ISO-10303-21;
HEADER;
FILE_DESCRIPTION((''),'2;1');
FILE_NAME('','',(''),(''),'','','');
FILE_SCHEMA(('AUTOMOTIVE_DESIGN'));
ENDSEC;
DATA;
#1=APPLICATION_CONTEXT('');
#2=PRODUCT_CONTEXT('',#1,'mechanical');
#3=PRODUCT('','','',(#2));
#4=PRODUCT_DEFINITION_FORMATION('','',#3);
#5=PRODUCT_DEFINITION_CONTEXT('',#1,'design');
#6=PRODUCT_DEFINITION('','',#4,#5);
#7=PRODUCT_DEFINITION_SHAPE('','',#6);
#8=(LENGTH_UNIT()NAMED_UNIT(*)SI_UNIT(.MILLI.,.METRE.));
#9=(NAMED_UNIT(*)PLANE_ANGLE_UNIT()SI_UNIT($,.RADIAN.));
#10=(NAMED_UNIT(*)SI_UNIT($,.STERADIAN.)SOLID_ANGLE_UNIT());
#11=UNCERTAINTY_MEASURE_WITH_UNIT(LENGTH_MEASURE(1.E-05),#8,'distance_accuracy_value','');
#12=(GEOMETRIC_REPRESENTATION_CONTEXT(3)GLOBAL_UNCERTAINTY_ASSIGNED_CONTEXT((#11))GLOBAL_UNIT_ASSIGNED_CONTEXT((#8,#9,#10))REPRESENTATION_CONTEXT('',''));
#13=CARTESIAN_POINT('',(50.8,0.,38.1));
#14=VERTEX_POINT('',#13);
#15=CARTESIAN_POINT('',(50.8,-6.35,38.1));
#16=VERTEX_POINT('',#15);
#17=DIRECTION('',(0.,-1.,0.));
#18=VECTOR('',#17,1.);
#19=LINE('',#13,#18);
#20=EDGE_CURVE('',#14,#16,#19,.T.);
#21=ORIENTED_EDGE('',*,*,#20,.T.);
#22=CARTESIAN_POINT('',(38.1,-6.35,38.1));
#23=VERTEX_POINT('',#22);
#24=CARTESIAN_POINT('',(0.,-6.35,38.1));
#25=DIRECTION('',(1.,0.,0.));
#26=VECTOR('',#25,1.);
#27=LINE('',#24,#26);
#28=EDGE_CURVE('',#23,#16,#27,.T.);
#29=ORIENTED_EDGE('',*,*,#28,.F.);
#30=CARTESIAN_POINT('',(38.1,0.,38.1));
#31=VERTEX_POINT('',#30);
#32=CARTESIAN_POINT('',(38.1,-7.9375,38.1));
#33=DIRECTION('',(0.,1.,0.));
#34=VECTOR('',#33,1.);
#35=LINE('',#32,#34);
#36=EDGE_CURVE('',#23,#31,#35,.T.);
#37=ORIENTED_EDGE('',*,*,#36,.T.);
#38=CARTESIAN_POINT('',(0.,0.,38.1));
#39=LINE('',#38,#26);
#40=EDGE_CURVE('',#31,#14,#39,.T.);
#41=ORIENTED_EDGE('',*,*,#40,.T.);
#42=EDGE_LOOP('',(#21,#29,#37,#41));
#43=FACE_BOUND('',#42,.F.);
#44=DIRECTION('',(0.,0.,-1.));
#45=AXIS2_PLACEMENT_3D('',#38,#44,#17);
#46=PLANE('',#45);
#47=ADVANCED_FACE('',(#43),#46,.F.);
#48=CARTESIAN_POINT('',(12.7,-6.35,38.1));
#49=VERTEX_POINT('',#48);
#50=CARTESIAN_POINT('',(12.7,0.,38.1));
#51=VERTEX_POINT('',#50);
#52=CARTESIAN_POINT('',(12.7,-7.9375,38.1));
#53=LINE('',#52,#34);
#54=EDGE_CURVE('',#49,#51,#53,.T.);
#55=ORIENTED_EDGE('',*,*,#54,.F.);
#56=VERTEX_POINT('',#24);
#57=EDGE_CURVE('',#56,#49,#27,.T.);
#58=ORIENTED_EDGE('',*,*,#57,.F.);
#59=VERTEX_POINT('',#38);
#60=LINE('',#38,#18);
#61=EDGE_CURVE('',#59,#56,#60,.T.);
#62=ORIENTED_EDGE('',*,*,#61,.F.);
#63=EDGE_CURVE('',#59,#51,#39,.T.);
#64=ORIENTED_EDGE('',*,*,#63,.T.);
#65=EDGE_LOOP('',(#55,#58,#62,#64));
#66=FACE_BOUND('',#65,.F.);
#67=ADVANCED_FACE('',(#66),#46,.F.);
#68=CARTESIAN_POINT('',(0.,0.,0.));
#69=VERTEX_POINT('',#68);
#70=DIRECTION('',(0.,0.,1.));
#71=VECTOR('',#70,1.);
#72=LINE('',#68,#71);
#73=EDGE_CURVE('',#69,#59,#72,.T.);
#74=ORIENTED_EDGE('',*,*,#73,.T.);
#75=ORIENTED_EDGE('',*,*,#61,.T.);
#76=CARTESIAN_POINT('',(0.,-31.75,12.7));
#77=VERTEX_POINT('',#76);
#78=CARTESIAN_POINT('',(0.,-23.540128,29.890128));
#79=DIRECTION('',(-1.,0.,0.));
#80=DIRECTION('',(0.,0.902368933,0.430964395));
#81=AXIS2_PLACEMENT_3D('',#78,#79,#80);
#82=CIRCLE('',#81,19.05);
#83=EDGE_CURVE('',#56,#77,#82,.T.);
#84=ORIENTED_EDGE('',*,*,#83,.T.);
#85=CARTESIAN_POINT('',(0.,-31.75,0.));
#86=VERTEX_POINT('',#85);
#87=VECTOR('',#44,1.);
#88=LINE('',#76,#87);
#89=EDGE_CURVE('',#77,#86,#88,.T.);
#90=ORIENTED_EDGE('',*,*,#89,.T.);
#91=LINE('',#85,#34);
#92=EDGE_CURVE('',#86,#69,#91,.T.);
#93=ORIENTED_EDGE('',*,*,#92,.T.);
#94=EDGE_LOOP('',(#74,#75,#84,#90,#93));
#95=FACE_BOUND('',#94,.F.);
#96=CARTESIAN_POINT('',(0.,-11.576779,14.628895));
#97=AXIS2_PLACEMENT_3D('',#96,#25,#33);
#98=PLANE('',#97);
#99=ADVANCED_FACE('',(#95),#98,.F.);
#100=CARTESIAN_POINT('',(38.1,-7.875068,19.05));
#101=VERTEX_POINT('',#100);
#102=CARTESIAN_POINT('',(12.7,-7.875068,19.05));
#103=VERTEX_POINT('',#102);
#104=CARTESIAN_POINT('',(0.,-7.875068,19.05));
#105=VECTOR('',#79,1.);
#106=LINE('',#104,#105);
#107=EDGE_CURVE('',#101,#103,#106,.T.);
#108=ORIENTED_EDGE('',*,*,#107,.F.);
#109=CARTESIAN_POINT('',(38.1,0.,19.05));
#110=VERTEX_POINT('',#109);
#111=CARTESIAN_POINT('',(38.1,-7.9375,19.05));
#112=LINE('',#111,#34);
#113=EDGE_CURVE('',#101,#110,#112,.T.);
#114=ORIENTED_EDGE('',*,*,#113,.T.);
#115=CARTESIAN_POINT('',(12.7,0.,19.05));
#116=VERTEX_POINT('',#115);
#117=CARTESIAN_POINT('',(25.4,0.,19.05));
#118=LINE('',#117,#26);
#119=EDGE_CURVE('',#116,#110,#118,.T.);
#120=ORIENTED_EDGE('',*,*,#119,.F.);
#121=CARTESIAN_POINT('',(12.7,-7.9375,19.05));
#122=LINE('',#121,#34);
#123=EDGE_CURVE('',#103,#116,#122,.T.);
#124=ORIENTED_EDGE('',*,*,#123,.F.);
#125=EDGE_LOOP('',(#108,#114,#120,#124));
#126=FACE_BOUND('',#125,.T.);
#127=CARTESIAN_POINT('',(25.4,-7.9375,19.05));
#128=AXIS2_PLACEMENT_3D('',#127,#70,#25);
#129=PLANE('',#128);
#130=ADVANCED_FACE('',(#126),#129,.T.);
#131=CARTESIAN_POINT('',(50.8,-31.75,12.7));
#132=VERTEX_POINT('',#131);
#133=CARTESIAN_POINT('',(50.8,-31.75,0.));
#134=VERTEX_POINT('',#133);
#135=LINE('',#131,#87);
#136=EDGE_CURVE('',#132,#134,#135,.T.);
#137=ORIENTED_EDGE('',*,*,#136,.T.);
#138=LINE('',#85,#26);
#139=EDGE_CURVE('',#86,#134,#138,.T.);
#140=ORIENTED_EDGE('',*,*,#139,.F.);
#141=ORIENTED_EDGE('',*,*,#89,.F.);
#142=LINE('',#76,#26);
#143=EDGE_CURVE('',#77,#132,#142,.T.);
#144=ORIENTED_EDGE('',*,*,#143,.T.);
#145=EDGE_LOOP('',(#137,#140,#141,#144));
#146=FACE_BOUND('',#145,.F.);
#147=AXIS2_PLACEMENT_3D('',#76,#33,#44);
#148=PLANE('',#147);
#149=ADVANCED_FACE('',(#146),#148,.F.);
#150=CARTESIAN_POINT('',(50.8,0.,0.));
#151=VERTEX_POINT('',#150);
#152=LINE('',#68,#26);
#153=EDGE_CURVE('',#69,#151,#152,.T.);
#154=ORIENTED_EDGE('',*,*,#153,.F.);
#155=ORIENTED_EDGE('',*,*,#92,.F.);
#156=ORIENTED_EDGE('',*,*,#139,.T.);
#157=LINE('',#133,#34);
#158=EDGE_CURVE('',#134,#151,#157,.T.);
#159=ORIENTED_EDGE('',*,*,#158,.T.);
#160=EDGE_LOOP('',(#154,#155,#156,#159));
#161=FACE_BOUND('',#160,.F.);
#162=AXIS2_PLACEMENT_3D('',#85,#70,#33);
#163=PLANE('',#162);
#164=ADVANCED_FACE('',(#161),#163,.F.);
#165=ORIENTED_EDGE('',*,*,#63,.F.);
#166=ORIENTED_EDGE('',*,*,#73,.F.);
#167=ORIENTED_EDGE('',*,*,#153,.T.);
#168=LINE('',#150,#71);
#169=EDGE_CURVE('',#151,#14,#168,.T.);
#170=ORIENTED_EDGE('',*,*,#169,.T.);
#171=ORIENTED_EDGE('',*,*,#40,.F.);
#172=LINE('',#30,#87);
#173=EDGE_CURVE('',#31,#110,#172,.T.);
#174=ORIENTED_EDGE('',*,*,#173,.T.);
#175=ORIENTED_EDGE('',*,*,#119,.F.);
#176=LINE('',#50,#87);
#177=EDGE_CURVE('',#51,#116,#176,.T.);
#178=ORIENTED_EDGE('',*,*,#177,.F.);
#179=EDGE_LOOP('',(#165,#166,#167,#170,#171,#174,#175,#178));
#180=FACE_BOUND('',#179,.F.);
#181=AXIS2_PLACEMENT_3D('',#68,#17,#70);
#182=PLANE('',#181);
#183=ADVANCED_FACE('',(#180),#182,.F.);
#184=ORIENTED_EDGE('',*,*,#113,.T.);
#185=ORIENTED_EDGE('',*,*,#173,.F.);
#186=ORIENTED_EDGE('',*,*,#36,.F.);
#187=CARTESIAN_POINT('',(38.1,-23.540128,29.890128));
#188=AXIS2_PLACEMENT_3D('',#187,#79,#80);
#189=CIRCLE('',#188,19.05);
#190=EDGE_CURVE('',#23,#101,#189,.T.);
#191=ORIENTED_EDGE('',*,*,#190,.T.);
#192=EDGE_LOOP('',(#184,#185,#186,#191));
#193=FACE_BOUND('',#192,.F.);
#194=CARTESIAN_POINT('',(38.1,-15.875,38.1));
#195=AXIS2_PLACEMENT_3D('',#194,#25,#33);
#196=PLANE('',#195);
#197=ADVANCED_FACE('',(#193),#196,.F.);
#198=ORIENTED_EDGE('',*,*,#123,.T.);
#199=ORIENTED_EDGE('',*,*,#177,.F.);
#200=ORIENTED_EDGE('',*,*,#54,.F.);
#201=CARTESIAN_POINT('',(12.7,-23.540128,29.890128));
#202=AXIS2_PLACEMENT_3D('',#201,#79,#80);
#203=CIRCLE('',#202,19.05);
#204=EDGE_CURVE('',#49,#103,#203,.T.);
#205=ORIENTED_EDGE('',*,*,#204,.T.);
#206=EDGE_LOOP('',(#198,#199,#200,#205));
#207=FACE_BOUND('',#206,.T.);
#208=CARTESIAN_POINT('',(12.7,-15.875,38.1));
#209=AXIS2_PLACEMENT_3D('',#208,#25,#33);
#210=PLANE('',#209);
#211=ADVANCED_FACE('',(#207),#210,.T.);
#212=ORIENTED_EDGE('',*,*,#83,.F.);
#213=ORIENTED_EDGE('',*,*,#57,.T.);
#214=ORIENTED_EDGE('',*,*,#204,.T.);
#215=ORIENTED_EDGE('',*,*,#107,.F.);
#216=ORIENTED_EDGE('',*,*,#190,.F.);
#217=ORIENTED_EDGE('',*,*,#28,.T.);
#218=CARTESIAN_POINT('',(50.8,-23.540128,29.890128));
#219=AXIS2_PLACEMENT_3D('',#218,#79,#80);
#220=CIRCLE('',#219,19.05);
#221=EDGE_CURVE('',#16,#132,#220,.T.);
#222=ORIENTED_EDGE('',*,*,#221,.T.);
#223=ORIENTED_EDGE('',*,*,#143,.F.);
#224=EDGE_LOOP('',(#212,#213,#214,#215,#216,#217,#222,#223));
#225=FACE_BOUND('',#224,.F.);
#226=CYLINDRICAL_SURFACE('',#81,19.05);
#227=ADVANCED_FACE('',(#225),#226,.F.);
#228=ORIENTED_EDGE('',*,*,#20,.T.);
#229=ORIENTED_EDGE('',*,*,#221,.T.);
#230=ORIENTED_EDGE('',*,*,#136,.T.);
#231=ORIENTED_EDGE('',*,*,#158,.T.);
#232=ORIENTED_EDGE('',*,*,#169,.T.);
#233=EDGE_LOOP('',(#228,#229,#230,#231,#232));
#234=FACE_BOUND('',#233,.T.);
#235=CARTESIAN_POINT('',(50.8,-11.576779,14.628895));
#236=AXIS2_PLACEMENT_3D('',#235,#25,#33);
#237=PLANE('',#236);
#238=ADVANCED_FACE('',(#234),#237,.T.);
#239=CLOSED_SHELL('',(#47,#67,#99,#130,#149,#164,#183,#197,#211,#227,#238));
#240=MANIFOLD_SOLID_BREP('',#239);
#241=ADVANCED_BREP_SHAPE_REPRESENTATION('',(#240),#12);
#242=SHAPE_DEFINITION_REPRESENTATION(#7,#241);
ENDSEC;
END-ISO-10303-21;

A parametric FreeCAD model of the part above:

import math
import FreeCAD as App
import Part
import Sketcher
Q = App.Units.Quantity


def add_polygon(sketch, points):
    """Adds a closed chain of lines whose ends are joined by coincident constraints."""
    first, n = sketch.GeometryCount, len(points)
    for a, b in zip(points, points[1:] + points[:1]):
        sketch.addGeometry(Part.LineSegment(App.Vector(*a, 0), App.Vector(*b, 0)), False)
    for i in range(n):
        sketch.addConstraint(Sketcher.Constraint("Coincident", first + i, 2, first + (i + 1) % n, 1))

doc = App.newDocument("Part")
body = doc.addObject("PartDesign::Body", "Body")

# Sketch on YZ plane
sketch1 = doc.addObject("Sketcher::SketchObject", "Sketch")
body.addObject(sketch1)
sketch1.AttachmentSupport = (doc.YZ_Plane, [""])
sketch1.MapMode = "FlatFace"
sketch1.addGeometry([
    Part.LineSegment(App.Vector(0, 0, 0), App.Vector(0, 38, 0)),  # 0
    Part.LineSegment(App.Vector(0, 38, 0), App.Vector(-6, 38, 0)),  # 1
    Part.ArcOfCircle(Part.Circle(App.Vector(-24, 30, 0), App.Vector(0, 0, 1), 19), math.radians(-116), math.radians(26)),  # 2
    Part.LineSegment(App.Vector(-32, 13, 0), App.Vector(-32, 0, 0)),  # 3
    Part.LineSegment(App.Vector(-32, 0, 0), App.Vector(0, 0, 0)),  # 4
], False)
sketch1.addConstraint([
    Sketcher.Constraint("Coincident", 0, 2, 1, 1),
    Sketcher.Constraint("Coincident", 1, 2, 2, 2),
    Sketcher.Constraint("Coincident", 2, 1, 3, 1),
    Sketcher.Constraint("Coincident", 3, 2, 4, 1),
    Sketcher.Constraint("Coincident", 4, 2, 0, 1),
    Sketcher.Constraint("Vertical", 0),
    Sketcher.Constraint("Horizontal", 1),
    Sketcher.Constraint("Vertical", 3),
    Sketcher.Constraint("Horizontal", 4),
    Sketcher.Constraint("Coincident", 4, 2, -1, 1),
    Sketcher.Constraint("Radius", 2, Q("0.75 in")),
    Sketcher.Constraint("DistanceY", 0, 1, 0, 2, Q("1.5 in")),
    Sketcher.Constraint("DistanceY", 3, 2, 3, 1, Q("0.5 in")),
    Sketcher.Constraint("DistanceX", 2, 1, 1, 2, Q("1 in")),
    Sketcher.Constraint("DistanceX", 1, 2, 1, 1, Q("0.25 in")),
])
pad1 = doc.addObject("PartDesign::Pad", "Pad")
body.addObject(pad1)
pad1.Profile = sketch1
pad1.Length = Q("2 in")

# Sketch on XY plane
sketch2 = doc.addObject("Sketcher::SketchObject", "Sketch001")
body.addObject(sketch2)
sketch2.AttachmentSupport = (doc.XY_Plane, [""])
sketch2.MapMode = "FlatFace"
sketch2.AttachmentOffset = App.Placement(App.Vector(0, 0, 1.5 * 25.4), App.Rotation())
add_polygon(sketch2, [(13, 0), (13, -16), (38, -16), (38, 0)])  # lines 0-3
sketch2.addConstraint([
    Sketcher.Constraint("Vertical", 0),
    Sketcher.Constraint("Horizontal", 1),
    Sketcher.Constraint("Vertical", 2),
    Sketcher.Constraint("Horizontal", 3),
    Sketcher.Constraint("PointOnObject", 2, 2, -1),
    Sketcher.Constraint("DistanceX", 1, 1, 1, 2, Q("1 in")),
    Sketcher.Constraint("DistanceX", -1, 1, 0, 2, Q("0.5 in")),
    Sketcher.Constraint("DistanceY", 0, 2, 0, 1, Q("0.625 in")),
])
pocket1 = doc.addObject("PartDesign::Pocket", "Pocket")
body.addObject(pocket1)
pocket1.Profile = sketch2
pocket1.Length = Q("0.75 in")

doc.recompute()
